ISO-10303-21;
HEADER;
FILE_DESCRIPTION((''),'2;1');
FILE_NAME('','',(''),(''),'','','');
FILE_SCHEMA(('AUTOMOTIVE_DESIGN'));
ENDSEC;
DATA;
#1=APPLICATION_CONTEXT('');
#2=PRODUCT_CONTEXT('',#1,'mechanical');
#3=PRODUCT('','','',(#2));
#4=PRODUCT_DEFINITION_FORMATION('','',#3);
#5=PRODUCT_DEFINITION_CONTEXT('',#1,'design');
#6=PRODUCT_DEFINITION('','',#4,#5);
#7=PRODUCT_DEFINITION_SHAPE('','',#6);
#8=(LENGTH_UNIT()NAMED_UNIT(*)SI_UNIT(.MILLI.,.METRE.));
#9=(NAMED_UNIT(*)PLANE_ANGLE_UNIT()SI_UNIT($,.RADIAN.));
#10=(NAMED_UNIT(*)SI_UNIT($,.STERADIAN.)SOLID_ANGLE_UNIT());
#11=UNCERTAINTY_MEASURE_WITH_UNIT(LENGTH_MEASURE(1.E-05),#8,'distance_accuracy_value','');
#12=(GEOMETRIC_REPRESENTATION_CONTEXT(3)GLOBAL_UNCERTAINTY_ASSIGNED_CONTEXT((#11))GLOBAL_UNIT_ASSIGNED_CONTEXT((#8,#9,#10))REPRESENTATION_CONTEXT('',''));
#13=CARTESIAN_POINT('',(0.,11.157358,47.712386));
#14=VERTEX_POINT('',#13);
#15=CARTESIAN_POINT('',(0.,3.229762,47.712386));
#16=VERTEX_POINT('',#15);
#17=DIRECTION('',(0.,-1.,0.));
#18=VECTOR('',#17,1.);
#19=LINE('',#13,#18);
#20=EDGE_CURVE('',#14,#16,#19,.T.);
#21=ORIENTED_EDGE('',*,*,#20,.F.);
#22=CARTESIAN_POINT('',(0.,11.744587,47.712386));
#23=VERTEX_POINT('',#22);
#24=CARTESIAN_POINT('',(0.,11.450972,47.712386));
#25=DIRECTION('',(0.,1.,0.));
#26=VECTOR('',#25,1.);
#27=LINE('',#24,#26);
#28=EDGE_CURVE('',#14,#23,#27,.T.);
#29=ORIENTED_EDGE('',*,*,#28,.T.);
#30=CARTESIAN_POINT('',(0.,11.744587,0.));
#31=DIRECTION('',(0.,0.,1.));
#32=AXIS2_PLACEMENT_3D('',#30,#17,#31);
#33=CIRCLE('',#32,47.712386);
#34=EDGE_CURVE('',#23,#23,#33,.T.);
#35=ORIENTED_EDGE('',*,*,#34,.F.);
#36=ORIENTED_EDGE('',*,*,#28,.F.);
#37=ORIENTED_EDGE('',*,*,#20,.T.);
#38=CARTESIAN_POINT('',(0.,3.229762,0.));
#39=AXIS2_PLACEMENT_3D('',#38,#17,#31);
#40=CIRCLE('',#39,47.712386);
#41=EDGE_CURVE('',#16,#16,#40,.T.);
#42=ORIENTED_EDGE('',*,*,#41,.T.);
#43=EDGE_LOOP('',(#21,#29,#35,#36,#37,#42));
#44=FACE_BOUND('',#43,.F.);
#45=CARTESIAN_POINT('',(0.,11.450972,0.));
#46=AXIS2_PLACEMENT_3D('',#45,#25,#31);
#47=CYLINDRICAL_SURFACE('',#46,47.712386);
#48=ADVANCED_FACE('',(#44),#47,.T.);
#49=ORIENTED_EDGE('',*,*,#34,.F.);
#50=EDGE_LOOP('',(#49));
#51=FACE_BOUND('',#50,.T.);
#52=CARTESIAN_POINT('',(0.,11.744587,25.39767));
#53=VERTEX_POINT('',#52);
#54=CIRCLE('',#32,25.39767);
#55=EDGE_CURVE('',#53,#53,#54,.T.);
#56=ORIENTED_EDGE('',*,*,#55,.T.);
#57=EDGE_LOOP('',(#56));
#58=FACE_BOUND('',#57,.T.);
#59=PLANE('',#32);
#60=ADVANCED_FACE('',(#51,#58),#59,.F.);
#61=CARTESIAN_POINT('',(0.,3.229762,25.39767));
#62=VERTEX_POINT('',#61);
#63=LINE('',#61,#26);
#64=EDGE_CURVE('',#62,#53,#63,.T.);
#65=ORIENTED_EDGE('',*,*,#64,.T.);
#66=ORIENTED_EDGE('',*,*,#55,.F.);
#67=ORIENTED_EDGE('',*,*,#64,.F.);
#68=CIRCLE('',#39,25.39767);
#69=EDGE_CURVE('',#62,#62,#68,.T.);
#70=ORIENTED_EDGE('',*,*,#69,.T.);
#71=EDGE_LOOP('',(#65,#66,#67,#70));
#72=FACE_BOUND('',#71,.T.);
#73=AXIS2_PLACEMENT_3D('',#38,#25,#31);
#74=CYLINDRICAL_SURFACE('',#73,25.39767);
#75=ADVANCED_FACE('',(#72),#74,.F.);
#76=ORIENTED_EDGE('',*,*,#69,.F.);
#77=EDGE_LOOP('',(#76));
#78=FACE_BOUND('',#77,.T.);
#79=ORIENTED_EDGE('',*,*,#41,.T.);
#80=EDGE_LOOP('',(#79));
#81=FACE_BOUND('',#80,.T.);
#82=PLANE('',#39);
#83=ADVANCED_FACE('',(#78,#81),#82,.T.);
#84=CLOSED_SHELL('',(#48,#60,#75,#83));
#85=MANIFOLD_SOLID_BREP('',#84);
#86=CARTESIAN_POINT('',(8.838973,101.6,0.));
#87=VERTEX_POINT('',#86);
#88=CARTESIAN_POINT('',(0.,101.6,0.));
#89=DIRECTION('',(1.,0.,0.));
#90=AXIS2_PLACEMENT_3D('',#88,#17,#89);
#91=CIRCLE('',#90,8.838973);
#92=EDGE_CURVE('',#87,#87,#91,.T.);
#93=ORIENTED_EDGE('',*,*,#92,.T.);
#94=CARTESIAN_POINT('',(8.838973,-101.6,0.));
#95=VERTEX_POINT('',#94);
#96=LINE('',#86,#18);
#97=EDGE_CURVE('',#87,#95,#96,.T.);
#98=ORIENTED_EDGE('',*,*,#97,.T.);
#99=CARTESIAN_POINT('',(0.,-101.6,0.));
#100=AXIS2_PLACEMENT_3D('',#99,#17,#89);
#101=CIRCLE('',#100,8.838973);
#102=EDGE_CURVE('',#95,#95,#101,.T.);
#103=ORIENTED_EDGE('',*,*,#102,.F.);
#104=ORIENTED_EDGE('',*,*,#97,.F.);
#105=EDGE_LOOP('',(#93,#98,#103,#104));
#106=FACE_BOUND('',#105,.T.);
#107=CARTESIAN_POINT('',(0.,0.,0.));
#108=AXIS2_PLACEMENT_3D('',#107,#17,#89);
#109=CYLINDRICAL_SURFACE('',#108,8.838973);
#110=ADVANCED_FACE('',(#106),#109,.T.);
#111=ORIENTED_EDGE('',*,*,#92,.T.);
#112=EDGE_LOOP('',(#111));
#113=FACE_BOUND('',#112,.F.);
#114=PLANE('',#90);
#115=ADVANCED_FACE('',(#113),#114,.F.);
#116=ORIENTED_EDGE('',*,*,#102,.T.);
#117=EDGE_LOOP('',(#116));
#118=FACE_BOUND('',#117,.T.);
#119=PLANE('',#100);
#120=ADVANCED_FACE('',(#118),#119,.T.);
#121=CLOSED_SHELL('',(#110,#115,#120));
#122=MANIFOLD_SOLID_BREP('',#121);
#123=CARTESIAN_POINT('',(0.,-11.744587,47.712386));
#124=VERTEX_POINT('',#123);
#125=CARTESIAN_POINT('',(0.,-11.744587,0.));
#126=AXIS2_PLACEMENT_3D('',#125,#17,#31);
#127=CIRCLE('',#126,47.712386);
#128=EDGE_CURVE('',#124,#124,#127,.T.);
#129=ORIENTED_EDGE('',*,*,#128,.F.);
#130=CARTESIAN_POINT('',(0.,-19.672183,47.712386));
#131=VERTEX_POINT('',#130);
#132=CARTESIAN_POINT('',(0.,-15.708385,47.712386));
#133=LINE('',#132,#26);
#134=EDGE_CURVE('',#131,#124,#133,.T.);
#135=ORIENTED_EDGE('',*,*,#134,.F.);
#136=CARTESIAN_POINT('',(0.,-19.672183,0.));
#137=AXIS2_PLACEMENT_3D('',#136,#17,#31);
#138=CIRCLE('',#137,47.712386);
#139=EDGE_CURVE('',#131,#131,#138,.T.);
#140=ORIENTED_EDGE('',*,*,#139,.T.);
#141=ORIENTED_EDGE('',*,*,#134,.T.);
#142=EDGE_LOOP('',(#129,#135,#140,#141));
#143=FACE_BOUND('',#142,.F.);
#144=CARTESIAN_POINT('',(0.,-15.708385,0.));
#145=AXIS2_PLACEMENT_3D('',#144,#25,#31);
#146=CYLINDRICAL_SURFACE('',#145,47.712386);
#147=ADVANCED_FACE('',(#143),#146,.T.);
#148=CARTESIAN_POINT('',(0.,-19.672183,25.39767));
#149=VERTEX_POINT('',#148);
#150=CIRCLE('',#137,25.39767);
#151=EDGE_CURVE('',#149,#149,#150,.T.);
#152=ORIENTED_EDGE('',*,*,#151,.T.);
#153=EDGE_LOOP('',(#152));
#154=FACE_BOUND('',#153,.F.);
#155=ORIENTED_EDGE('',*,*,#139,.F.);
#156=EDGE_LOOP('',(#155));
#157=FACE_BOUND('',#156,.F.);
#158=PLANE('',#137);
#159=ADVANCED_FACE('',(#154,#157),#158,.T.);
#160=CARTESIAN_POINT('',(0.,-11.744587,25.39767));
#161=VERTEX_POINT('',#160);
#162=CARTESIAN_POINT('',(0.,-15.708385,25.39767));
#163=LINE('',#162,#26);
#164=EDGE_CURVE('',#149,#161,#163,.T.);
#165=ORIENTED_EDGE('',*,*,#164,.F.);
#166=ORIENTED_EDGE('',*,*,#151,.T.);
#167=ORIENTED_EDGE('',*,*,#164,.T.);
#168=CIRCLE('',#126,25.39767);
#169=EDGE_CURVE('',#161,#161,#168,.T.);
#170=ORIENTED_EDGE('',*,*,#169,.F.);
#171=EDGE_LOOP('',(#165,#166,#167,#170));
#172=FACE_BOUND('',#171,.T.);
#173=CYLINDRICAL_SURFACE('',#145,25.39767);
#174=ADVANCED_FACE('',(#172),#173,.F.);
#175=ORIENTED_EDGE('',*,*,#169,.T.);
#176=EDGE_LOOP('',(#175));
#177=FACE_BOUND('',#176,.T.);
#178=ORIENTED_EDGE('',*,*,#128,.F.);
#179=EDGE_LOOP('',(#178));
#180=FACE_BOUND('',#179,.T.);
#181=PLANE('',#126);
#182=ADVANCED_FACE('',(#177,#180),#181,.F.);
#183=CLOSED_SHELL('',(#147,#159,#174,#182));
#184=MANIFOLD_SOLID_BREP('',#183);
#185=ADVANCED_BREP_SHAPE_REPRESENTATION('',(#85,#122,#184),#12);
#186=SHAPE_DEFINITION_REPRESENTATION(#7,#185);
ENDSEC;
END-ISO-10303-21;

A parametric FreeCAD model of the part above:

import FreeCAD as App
import Part
import Sketcher
from FreeCAD import Vector
Q = App.Units.Quantity

doc = App.newDocument("Part")
body = doc.addObject("PartDesign::Body", "Body")

# Sketch on XZ plane
sketch1 = body.newObject("Sketcher::SketchObject", "Sketch")
sketch1.AttachmentSupport = (doc.getObject("XZ_Plane"), [""])
sketch1.MapMode = "FlatFace"
sketch1.addGeometry(Part.Circle(Vector(0, 0, 0), Vector(0, 0, 1), 9), False)
sketch1.addConstraint(Sketcher.Constraint("Coincident", 0, 3, -1, 1))
sketch1.addConstraint(Sketcher.Constraint("Diameter", 0, Q("17.677946 mm")))
pad1 = body.newObject("PartDesign::Pad", "Pad")
pad1.Profile = sketch1
pad1.Length = Q("8 in")
pad1.Midplane = True
body2 = doc.addObject("PartDesign::Body", "Body001")

# Sketch on YZ plane
sketch2 = body2.newObject("Sketcher::SketchObject", "Sketch001")
sketch2.AttachmentSupport = (doc.getObject("YZ_Plane001"), [""])
sketch2.MapMode = "FlatFace"
sketch2.addGeometry(Part.LineSegment(Vector(11.7, 47.7, 0), Vector(11.2, 47.7, 0)), False)
sketch2.addGeometry(Part.LineSegment(Vector(11.2, 47.7, 0), Vector(3.2, 47.7, 0)), False)
sketch2.addGeometry(Part.LineSegment(Vector(3.2, 47.7, 0), Vector(3.2, 25.4, 0)), False)
sketch2.addGeometry(Part.LineSegment(Vector(3.2, 25.4, 0), Vector(11.7, 25.4, 0)), False)
sketch2.addGeometry(Part.LineSegment(Vector(11.7, 25.4, 0), Vector(11.7, 47.7, 0)), False)
sketch2.addConstraint(Sketcher.Constraint("Coincident", 0, 2, 1, 1))
sketch2.addConstraint(Sketcher.Constraint("Coincident", 1, 2, 2, 1))
sketch2.addConstraint(Sketcher.Constraint("Coincident", 2, 2, 3, 1))
sketch2.addConstraint(Sketcher.Constraint("Coincident", 3, 2, 4, 1))
sketch2.addConstraint(Sketcher.Constraint("Coincident", 4, 2, 0, 1))
sketch2.addConstraint(Sketcher.Constraint("Horizontal", 0))
sketch2.addConstraint(Sketcher.Constraint("Horizontal", 1))
sketch2.addConstraint(Sketcher.Constraint("Vertical", 2))
sketch2.addConstraint(Sketcher.Constraint("Horizontal", 3))
sketch2.addConstraint(Sketcher.Constraint("Vertical", 4))
sketch2.addConstraint(Sketcher.Constraint("DistanceX", 0, 2, 0, 1, Q("0.587229 mm")))
sketch2.addConstraint(Sketcher.Constraint("DistanceX", 1, 2, 1, 1, Q("7.927596 mm")))
sketch2.addConstraint(Sketcher.Constraint("DistanceY", 2, 2, 2, 1, Q("22.314716 mm")))
sketch2.addConstraint(Sketcher.Constraint("DistanceX", -1, 1, 0, 2, Q("11.157358 mm")))
sketch2.addConstraint(Sketcher.Constraint("DistanceY", -1, 1, 2, 2, Q("25.39767 mm")))
revolution = body2.newObject("PartDesign::Revolution", "Revolution")
revolution.Profile = sketch2
revolution.ReferenceAxis = (sketch2, ["H_Axis"])
revolution.Angle = 360
body3 = doc.addObject("PartDesign::Body", "Body002")

# Sketch on YZ plane
sketch3 = body3.newObject("Sketcher::SketchObject", "Sketch002")
sketch3.AttachmentSupport = (doc.getObject("YZ_Plane002"), [""])
sketch3.MapMode = "FlatFace"
sketch3.addGeometry(Part.LineSegment(Vector(-20, 48, 0), Vector(-20, 25, 0)), False)
sketch3.addGeometry(Part.LineSegment(Vector(-20, 25, 0), Vector(-12, 25, 0)), False)
sketch3.addGeometry(Part.LineSegment(Vector(-12, 25, 0), Vector(-12, 48, 0)), False)
sketch3.addGeometry(Part.LineSegment(Vector(-12, 48, 0), Vector(-20, 48, 0)), False)
sketch3.addConstraint(Sketcher.Constraint("Coincident", 0, 2, 1, 1))
sketch3.addConstraint(Sketcher.Constraint("Coincident", 1, 2, 2, 1))
sketch3.addConstraint(Sketcher.Constraint("Coincident", 2, 2, 3, 1))
sketch3.addConstraint(Sketcher.Constraint("Coincident", 3, 2, 0, 1))
sketch3.addConstraint(Sketcher.Constraint("Vertical", 0))
sketch3.addConstraint(Sketcher.Constraint("Horizontal", 1))
sketch3.addConstraint(Sketcher.Constraint("Vertical", 2))
sketch3.addConstraint(Sketcher.Constraint("Horizontal", 3))
sketch3.addConstraint(Sketcher.Constraint("DistanceX", 1, 1, 1, 2, Q("7.927597 mm")))
sketch3.addConstraint(Sketcher.Constraint("DistanceY", 0, 2, 0, 1, Q("22.314716 mm")))
sketch3.addConstraint(Sketcher.Constraint("DistanceY", -1, 1, 0, 2, Q("25.39767 mm")))
sketch3.addConstraint(Sketcher.Constraint("DistanceX", 0, 2, -1, 1, Q("19.672183 mm")))
revolution2 = body3.newObject("PartDesign::Revolution", "Revolution001")
revolution2.Profile = sketch3
revolution2.ReferenceAxis = (sketch3, ["H_Axis"])
revolution2.Angle = 360

doc.recompute()
